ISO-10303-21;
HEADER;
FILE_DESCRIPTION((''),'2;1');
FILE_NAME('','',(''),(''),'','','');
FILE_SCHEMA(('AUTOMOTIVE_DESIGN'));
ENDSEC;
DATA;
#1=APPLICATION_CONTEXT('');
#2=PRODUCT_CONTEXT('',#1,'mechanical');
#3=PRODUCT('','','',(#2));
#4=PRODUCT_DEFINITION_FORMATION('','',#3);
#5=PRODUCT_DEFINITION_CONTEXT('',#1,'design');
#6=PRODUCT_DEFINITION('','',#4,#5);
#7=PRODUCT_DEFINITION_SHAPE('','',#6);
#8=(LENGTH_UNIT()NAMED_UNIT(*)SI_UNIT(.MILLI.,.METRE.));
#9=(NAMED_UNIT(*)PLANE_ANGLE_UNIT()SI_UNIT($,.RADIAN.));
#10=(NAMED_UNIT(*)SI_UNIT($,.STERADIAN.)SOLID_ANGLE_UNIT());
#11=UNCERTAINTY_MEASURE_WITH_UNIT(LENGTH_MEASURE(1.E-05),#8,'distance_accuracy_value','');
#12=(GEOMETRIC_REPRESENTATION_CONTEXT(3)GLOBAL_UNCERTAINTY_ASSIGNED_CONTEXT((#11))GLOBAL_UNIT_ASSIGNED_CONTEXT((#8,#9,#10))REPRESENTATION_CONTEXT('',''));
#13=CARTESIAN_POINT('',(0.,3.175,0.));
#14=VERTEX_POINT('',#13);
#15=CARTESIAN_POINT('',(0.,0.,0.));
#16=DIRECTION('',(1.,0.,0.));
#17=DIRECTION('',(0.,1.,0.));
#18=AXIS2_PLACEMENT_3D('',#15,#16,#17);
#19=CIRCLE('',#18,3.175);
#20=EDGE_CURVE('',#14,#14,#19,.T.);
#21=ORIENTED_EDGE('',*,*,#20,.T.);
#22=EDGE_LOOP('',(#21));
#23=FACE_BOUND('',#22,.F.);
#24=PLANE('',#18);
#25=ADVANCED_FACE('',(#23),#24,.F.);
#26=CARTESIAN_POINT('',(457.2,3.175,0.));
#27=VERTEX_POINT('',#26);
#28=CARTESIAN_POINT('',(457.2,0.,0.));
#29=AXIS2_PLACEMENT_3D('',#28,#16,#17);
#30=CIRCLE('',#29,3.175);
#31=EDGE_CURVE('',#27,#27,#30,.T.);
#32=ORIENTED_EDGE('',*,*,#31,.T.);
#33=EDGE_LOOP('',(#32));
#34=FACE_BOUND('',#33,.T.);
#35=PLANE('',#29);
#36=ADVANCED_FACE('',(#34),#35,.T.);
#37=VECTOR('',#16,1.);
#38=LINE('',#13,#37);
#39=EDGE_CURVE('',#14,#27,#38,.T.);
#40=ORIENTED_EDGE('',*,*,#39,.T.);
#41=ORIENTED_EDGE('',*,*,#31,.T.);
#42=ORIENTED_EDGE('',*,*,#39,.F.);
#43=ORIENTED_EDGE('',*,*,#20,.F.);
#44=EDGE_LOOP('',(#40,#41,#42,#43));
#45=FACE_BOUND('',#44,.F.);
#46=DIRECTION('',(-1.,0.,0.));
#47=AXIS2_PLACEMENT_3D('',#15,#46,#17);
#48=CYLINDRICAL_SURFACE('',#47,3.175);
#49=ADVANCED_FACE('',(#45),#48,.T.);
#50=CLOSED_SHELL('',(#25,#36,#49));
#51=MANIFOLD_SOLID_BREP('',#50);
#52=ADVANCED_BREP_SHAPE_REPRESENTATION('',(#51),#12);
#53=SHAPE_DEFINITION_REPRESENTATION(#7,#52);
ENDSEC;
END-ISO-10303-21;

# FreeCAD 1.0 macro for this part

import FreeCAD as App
import Part
import Sketcher

V = App.Vector
Q = App.Units.Quantity

doc = App.newDocument("Part")
body = doc.addObject("PartDesign::Body", "Body")

sketch1 = doc.addObject("Sketcher::SketchObject", "Sketch")
body.addObject(sketch1)
sketch1.AttachmentSupport = (doc.YZ_Plane, [""])
sketch1.MapMode = "FlatFace"
sketch1.addGeometry(Part.Circle(V(0, 0, 0), V(0, 0, 1), 3.2), False)
sketch1.addConstraint([
    Sketcher.Constraint("Coincident", 0, 3, -1, 1),
    Sketcher.Constraint("Diameter", 0, Q("0.25 in")),
])
pad1 = doc.addObject("PartDesign::Pad", "Pad")
body.addObject(pad1)
pad1.Profile = sketch1
pad1.Length = Q("18 in")

doc.recompute()
